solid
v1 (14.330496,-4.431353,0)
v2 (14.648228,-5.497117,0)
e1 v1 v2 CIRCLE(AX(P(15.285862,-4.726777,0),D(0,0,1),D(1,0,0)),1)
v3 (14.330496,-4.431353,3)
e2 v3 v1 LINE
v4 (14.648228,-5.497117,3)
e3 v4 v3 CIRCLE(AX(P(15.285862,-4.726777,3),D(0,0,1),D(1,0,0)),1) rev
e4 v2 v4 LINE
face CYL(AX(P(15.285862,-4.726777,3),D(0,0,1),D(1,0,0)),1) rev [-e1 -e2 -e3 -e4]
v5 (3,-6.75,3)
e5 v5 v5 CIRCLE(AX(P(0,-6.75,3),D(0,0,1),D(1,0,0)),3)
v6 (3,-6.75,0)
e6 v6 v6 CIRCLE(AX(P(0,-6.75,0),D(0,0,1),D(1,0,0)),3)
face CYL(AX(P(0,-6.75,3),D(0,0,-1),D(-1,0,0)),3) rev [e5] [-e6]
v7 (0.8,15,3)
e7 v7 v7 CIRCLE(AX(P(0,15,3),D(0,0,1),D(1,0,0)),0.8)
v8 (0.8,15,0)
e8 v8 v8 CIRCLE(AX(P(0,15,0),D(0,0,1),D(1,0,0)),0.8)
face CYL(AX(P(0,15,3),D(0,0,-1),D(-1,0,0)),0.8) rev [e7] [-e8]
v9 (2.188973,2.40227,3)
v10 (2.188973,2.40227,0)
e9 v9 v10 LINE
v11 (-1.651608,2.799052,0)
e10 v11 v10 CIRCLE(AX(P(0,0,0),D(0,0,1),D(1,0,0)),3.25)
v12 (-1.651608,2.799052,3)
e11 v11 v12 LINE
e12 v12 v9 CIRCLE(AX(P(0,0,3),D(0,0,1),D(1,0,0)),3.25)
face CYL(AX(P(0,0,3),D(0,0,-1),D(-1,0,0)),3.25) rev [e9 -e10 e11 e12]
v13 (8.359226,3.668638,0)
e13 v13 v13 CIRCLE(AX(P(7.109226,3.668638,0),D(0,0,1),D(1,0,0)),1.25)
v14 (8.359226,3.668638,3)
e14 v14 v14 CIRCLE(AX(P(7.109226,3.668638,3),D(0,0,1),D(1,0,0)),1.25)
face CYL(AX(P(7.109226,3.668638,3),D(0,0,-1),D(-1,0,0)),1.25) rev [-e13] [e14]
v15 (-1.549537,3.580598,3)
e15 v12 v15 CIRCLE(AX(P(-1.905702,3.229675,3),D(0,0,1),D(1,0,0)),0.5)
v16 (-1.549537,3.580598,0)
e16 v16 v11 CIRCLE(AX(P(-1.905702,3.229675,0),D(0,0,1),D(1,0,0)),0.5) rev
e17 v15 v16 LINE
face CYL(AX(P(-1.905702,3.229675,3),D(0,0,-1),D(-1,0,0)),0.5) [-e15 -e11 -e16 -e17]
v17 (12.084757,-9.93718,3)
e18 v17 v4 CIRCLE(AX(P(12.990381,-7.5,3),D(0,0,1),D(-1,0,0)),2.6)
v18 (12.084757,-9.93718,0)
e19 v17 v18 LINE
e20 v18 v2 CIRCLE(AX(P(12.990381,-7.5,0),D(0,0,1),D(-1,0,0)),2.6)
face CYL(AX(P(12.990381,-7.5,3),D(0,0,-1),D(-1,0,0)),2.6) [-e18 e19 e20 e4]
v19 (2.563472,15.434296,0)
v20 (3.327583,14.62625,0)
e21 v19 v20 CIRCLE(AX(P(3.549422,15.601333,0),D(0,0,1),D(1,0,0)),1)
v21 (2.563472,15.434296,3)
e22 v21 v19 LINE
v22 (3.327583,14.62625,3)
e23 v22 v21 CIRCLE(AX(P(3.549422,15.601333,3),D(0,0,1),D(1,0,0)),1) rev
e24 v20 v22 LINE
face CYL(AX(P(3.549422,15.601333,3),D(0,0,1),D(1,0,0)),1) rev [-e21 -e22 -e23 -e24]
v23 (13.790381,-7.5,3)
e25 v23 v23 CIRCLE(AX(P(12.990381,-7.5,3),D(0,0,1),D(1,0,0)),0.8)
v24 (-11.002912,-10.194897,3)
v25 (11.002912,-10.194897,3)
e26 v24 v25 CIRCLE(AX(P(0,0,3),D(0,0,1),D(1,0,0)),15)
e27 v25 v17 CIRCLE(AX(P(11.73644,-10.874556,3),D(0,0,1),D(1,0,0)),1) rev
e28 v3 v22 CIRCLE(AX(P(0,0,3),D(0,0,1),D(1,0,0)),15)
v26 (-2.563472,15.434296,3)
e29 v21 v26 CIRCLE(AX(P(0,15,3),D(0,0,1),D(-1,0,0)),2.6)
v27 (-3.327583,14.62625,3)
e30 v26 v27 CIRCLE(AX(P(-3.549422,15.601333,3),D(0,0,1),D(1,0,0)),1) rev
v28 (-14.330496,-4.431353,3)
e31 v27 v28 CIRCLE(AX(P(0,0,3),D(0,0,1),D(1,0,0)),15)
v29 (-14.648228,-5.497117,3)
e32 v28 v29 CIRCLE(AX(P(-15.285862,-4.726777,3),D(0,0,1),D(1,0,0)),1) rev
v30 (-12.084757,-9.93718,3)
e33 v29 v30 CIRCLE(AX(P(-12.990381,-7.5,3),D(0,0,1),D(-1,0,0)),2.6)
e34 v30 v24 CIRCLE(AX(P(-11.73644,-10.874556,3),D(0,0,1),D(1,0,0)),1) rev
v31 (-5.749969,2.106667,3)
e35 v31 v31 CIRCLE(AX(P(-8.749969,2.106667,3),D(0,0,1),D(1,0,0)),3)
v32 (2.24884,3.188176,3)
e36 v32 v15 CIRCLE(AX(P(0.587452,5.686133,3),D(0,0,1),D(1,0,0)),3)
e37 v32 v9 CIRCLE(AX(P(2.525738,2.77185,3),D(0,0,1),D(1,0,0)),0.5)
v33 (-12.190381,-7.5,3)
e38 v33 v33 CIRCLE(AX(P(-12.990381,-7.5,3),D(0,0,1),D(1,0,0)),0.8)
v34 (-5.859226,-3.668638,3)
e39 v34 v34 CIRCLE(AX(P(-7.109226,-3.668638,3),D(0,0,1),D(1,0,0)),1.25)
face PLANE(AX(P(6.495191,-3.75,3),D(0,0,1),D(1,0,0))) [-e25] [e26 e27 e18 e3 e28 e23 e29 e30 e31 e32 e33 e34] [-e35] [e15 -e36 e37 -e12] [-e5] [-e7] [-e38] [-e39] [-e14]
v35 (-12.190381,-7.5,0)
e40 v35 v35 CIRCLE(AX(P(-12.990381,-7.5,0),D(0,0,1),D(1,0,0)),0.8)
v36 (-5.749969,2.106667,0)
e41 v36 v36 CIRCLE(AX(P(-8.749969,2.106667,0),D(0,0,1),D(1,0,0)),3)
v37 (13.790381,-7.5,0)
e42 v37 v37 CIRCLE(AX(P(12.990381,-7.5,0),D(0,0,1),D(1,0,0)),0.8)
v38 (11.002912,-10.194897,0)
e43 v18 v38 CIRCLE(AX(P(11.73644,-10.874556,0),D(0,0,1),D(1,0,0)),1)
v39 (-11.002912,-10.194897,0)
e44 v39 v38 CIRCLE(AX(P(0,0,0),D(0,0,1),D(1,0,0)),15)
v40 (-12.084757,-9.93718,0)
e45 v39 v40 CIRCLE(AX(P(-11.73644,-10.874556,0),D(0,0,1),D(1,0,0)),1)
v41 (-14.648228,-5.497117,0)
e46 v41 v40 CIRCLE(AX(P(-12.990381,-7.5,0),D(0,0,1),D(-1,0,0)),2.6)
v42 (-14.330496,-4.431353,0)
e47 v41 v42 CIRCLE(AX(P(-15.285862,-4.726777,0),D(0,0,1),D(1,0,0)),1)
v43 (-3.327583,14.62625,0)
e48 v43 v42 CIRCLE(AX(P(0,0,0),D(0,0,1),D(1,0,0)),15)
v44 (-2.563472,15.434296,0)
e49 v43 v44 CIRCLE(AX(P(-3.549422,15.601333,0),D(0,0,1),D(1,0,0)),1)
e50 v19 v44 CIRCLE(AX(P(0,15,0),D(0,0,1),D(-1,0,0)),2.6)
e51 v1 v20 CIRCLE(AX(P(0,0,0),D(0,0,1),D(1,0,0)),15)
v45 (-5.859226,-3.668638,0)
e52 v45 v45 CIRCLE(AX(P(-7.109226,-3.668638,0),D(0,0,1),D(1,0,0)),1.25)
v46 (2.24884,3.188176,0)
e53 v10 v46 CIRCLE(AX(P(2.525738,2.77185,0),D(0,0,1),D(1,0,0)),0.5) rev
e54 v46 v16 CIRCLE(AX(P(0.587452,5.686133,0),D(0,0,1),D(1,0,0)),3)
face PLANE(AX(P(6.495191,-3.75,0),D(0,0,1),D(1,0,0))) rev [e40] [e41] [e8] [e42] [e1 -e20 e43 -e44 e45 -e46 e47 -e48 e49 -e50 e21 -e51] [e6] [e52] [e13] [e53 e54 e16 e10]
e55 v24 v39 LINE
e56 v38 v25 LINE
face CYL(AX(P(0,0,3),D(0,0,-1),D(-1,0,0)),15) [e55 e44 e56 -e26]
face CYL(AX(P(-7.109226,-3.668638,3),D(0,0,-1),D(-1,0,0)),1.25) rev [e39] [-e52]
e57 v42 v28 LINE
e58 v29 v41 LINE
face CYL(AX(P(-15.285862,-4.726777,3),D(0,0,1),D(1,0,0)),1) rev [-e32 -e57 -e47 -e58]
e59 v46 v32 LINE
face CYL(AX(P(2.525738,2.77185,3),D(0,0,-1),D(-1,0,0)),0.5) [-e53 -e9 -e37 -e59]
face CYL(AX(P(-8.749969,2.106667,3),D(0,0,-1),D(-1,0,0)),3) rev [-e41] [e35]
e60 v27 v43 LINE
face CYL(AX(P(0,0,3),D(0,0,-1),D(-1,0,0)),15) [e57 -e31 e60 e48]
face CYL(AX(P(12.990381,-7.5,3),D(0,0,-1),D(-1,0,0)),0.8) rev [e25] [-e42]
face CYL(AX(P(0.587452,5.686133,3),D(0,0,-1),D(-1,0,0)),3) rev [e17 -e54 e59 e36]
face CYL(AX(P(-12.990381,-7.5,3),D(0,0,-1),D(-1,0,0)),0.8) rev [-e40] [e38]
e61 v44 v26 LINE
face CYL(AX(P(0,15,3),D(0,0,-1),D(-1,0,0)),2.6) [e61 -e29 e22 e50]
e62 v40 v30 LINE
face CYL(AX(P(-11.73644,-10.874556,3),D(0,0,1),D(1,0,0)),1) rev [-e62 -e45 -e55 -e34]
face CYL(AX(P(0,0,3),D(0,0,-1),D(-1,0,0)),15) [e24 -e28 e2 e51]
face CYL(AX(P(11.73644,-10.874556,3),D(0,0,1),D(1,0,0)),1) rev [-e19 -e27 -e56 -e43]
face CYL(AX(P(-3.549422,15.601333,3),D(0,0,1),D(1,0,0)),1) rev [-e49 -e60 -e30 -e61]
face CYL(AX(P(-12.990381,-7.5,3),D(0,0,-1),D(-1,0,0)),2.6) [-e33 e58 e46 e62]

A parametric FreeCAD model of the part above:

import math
import FreeCAD as App
import Part
import Sketcher

V = App.Vector


def edges_at(feature, points):
    """Names of the edges that pass closest to the given points."""
    edges = feature.Shape.Edges
    near = lambda p: min(range(len(edges)), key=lambda i: edges[i].distToShape(Part.Vertex(*p))[0])
    return sorted({f"Edge{near(p) + 1}" for p in points})

doc = App.newDocument("Part")
body = doc.addObject("PartDesign::Body", "Body")

sketch1 = doc.addObject("Sketcher::SketchObject", "Sketch")
body.addObject(sketch1)
sketch1.AttachmentSupport = (doc.XY_Plane, [""])
sketch1.MapMode = "FlatFace"
sketch1.addGeometry(Part.ArcOfCircle(Part.Circle(V(-13, -7.5, 0), V(0, 0, 1), 2.6), math.radians(115), math.radians(305)), False)
sketch1.addGeometry(Part.ArcOfCircle(Part.Circle(V(0, 0, 0), V(0, 0, 1), 15), math.radians(-140), math.radians(-40)), False)
sketch1.addGeometry(Part.ArcOfCircle(Part.Circle(V(13, -7.5, 0), V(0, 0, 1), 2.6), math.radians(-125), math.radians(65)), False)
sketch1.addGeometry(Part.ArcOfCircle(Part.Circle(V(0, 0, 0), V(0, 0, 1), 15), math.radians(-20), math.radians(80)), False)
sketch1.addGeometry(Part.ArcOfCircle(Part.Circle(V(0, 15, 0), V(0, 0, 1), 2.6), math.radians(-5), math.radians(185)), False)
sketch1.addGeometry(Part.ArcOfCircle(Part.Circle(V(0, 0, 0), V(0, 0, 1), 15), math.radians(100), math.radians(200)), False)
sketch1.addGeometry(Part.Circle(V(13, -7.5, 0), V(0, 0, 1), 0.8), False)
sketch1.addGeometry(Part.ArcOfCircle(Part.Circle(V(0, 0, 0), V(0, 0, 1), 3.2), math.radians(107), math.radians(421)), False)
sketch1.addGeometry(Part.ArcOfCircle(Part.Circle(V(0.6, 5.7, 0), V(0, 0, 1), 3), math.radians(-71), math.radians(239)), False)
sketch1.addGeometry(Part.Circle(V(0, -6.8, 0), V(0, 0, 1), 3), False)
sketch1.addGeometry(Part.Circle(V(-13, -7.5, 0), V(0, 0, 1), 0.8), False)
sketch1.addGeometry(Part.Circle(V(-7.1, -3.7, 0), V(0, 0, 1), 1.2), False)
sketch1.addGeometry(Part.Circle(V(-8.7, 2.1, 0), V(0, 0, 1), 3), False)
sketch1.addGeometry(Part.Circle(V(7.1, 3.7, 0), V(0, 0, 1), 1.2), False)
sketch1.addGeometry(Part.Circle(V(0, 15, 0), V(0, 0, 1), 0.8), False)
sketch1.addConstraint(Sketcher.Constraint("Coincident", 0, 2, 1, 1))
sketch1.addConstraint(Sketcher.Constraint("Coincident", 1, 2, 2, 1))
sketch1.addConstraint(Sketcher.Constraint("Coincident", 2, 2, 3, 1))
sketch1.addConstraint(Sketcher.Constraint("Coincident", 3, 2, 4, 1))
sketch1.addConstraint(Sketcher.Constraint("Coincident", 4, 2, 5, 1))
sketch1.addConstraint(Sketcher.Constraint("Coincident", 5, 2, 0, 1))
sketch1.addConstraint(Sketcher.Constraint("Coincident", 7, 1, 8, 2))
sketch1.addConstraint(Sketcher.Constraint("Coincident", 8, 1, 7, 2))
sketch1.addConstraint(Sketcher.Constraint("Coincident", 1, 3, -1, 1))
sketch1.addConstraint(Sketcher.Constraint("Coincident", 3, 3, -1, 1))
sketch1.addConstraint(Sketcher.Constraint("Coincident", 5, 3, -1, 1))
sketch1.addConstraint(Sketcher.Constraint("Coincident", 7, 3, -1, 1))
sketch1.addConstraint(Sketcher.Constraint("Coincident", 6, 3, 2, 3))
sketch1.addConstraint(Sketcher.Constraint("Coincident", 10, 3, 0, 3))
sketch1.addConstraint(Sketcher.Constraint("Coincident", 14, 3, 4, 3))
sketch1.addConstraint(Sketcher.Constraint("Equal", 0, 2))
sketch1.addConstraint(Sketcher.Constraint("Equal", 1, 3))
sketch1.addConstraint(Sketcher.Constraint("Equal", 2, 4))
sketch1.addConstraint(Sketcher.Constraint("Equal", 3, 5))
sketch1.addConstraint(Sketcher.Constraint("Equal", 8, 9))
sketch1.addConstraint(Sketcher.Constraint("Equal", 6, 10))
sketch1.addConstraint(Sketcher.Constraint("Equal", 9, 12))
sketch1.addConstraint(Sketcher.Constraint("Equal", 11, 13))
sketch1.addConstraint(Sketcher.Constraint("Equal", 10, 14))
sketch1.addConstraint(Sketcher.Constraint("Symmetric", 11, 3, 13, 3, -1, 1))
sketch1.addConstraint(Sketcher.Constraint("Symmetric", 0, 3, 2, 3, -2))
sketch1.addConstraint(Sketcher.Constraint("PointOnObject", 4, 3, -2))
sketch1.addConstraint(Sketcher.Constraint("PointOnObject", 9, 3, -2))
sketch1.addConstraint(Sketcher.Constraint("Diameter", 9, 6.0))
sketch1.addConstraint(Sketcher.Constraint("Radius", 1, 15.0))
sketch1.addConstraint(Sketcher.Constraint("Diameter", 6, 1.6))
sketch1.addConstraint(Sketcher.Constraint("Diameter", 11, 2.5))
sketch1.addConstraint(Sketcher.Constraint("Radius", 0, 2.6))
sketch1.addConstraint(Sketcher.Constraint("Radius", 7, 3.25))
sketch1.addConstraint(Sketcher.Constraint("DistanceY", -1, 1, 4, 3, 15.0))
sketch1.addConstraint(Sketcher.Constraint("DistanceY", 0, 3, -1, 1, 7.5))
sketch1.addConstraint(Sketcher.Constraint("DistanceY", 9, 3, -1, 1, 6.75))
sketch1.addConstraint(Sketcher.Constraint("DistanceY", 12, 3, 4, 2, 12.668))
sketch1.addConstraint(Sketcher.Constraint("DistanceY", 5, 2, 11, 3, 1.475501))
sketch1.addConstraint(Sketcher.Constraint("DistanceX", 0, 3, -1, 1, 12.990381))
sketch1.addConstraint(Sketcher.Constraint("DistanceX", -1, 1, 8, 3, 0.587452))
sketch1.addConstraint(Sketcher.Constraint("DistanceX", 12, 3, -1, 1, 8.749969))
sketch1.addConstraint(Sketcher.Constraint("DistanceX", 13, 3, 2, 2, 6.981119))
sketch1.addConstraint(Sketcher.Constraint("DistanceX", 7, 1, 8, 1, 2.51113))
pad1 = doc.addObject("PartDesign::Pad", "Pad")
body.addObject(pad1)
pad1.Profile = sketch1
pad1.Length = 3
doc.recompute()

fillet = doc.addObject("PartDesign::Fillet", "Fillet")
body.addObject(fillet)
fillet.Base = (pad1, edges_at(pad1, [(-0.948, 3.109, 1.5), (1.563, 2.849, 1.5)]))
fillet.Radius = 0.5
doc.recompute()

fillet2 = doc.addObject("PartDesign::Fillet", "Fillet001")
body.addObject(fillet2)
fillet2.Base = (fillet, edges_at(fillet, [
    (-11.5, -9.631, 1.5),
    (-14.09, -5.144, 1.5),
    (-2.59, 14.775, 1.5),
    (2.59, 14.775, 1.5),
    (14.09, -5.144, 1.5),
    (11.5, -9.631, 1.5),
]))
fillet2.Radius = 1

doc.recompute()
